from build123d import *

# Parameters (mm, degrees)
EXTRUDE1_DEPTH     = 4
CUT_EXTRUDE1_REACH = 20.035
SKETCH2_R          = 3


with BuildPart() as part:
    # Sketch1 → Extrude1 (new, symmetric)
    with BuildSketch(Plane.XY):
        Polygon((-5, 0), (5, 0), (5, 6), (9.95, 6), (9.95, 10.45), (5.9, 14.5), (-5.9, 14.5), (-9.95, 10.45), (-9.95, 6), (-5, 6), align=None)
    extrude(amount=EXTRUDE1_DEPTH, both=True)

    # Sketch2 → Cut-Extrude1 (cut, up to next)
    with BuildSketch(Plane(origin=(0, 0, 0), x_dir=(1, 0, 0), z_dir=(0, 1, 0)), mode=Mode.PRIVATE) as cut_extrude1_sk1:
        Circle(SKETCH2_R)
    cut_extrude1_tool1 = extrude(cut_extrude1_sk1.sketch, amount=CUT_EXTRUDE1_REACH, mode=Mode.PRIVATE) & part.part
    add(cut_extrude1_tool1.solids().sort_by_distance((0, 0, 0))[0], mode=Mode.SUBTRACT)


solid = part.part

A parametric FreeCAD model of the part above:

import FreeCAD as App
import Part
import Sketcher
from FreeCAD import Vector
Q = App.Units.Quantity


def add_polygon(sketch, points):
    """Adds a closed chain of lines whose ends are joined by coincident constraints."""
    first, n = sketch.GeometryCount, len(points)
    for a, b in zip(points, points[1:] + points[:1]):
        sketch.addGeometry(Part.LineSegment(App.Vector(*a, 0), App.Vector(*b, 0)), False)
    for i in range(n):
        sketch.addConstraint(Sketcher.Constraint("Coincident", first + i, 2, first + (i + 1) % n, 1))

doc = App.newDocument("Part")
body = doc.addObject("PartDesign::Body", "Body")

# Sketch on XY plane
sketch1 = body.newObject("Sketcher::SketchObject", "Sketch")
sketch1.AttachmentSupport = (doc.getObject("XY_Plane"), [""])
sketch1.MapMode = "FlatFace"
add_polygon(sketch1, [(-5, 0), (5, 0), (5, 6), (9.9, 6), (9.9, 10.4), (5.9, 14.5), (-5.9, 14.5), (-9.9, 10.4), (-9.9, 6), (-5, 6)])  # lines 0-9
sketch1.addConstraint([
    Sketcher.Constraint("Horizontal", 0),
    Sketcher.Constraint("Vertical", 1),
    Sketcher.Constraint("Horizontal", 2),
    Sketcher.Constraint("Vertical", 3),
    Sketcher.Constraint("Horizontal", 5),
    Sketcher.Constraint("Vertical", 7),
    Sketcher.Constraint("Horizontal", 8),
    Sketcher.Constraint("Vertical", 9),
    Sketcher.Constraint("Symmetric", 0, 2, 9, 2, -1, 1),
    Sketcher.Constraint("Symmetric", 3, 2, 6, 2, -2),
    Sketcher.Constraint("Perpendicular", 4, 6),
    Sketcher.Constraint("Horizontal", 2, 2, 7, 2),
    Sketcher.Constraint("Equal", 4, 6),
    Sketcher.Constraint("DistanceX", 0, 1, 0, 2, Q("10 mm")),
    Sketcher.Constraint("DistanceY", 1, 1, 1, 2, Q("6 mm")),
    Sketcher.Constraint("DistanceX", 5, 2, 5, 1, Q("11.8 mm")),
    Sketcher.Constraint("DistanceX", 2, 1, 2, 2, Q("4.95 mm")),
    Sketcher.Constraint("DistanceY", 3, 1, 3, 2, Q("4.45 mm")),
])
pad1 = body.newObject("PartDesign::Pad", "Pad")
pad1.Profile = sketch1
pad1.Length = 8
pad1.Midplane = True

# Sketch on XZ plane
sketch2 = body.newObject("Sketcher::SketchObject", "Sketch001")
sketch2.AttachmentSupport = (doc.getObject("XZ_Plane"), [""])
sketch2.MapMode = "FlatFace"
sketch2.addGeometry(Part.Circle(Vector(0, 0, 0), Vector(0, 0, 1), 3), False)
sketch2.addConstraint([
    Sketcher.Constraint("Coincident", 0, 3, -1, 1),
    Sketcher.Constraint("Diameter", 0, Q("6 mm")),
])
pocket1 = body.newObject("PartDesign::Pocket", "Pocket")
pocket1.Profile = sketch2
pocket1.Type = "UpToFirst"

doc.recompute()
